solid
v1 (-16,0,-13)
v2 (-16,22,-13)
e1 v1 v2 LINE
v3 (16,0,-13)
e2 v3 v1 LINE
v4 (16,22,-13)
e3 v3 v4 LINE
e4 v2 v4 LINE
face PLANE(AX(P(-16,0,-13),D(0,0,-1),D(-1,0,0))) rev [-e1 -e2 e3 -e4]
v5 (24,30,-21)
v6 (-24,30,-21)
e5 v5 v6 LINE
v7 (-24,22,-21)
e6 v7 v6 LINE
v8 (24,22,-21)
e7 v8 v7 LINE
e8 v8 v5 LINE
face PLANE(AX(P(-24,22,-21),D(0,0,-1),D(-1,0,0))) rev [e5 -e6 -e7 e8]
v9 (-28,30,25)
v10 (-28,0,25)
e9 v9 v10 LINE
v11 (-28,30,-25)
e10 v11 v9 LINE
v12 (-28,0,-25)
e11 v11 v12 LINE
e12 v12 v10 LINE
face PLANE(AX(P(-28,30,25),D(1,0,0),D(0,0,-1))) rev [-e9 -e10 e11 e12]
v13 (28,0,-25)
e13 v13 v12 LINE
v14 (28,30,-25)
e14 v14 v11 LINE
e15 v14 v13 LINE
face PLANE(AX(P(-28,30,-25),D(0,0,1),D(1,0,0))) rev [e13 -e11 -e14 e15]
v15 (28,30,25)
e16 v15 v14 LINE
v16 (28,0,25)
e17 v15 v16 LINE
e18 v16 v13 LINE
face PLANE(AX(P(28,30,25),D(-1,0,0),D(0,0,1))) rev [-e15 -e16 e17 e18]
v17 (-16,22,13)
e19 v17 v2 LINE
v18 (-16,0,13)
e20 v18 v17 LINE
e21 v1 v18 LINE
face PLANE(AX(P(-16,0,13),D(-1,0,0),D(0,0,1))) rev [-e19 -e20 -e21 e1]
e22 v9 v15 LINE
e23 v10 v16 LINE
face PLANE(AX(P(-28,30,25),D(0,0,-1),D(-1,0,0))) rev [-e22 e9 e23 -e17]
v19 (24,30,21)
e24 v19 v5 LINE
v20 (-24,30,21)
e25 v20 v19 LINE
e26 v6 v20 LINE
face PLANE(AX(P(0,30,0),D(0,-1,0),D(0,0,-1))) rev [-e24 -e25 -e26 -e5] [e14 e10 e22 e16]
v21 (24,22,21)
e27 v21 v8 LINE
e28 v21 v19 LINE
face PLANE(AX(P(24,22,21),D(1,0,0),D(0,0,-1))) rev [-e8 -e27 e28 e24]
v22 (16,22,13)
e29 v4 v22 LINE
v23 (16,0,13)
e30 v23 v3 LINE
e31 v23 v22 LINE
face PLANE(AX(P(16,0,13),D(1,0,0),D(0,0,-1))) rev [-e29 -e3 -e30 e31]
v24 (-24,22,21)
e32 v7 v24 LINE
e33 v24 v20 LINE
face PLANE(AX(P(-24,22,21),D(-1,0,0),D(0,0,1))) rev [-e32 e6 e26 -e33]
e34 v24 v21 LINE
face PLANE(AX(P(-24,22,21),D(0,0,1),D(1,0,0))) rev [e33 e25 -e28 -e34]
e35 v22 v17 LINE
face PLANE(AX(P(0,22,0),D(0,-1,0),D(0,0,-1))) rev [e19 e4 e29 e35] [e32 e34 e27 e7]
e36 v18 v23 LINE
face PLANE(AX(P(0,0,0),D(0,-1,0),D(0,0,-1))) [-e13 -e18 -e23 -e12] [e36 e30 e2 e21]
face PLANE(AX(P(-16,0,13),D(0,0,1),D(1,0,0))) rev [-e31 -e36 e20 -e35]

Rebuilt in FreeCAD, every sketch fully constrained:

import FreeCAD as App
import Part
import Sketcher
Q = App.Units.Quantity


def add_polygon(sketch, points):
    """Adds a closed chain of lines whose ends are joined by coincident constraints."""
    first, n = sketch.GeometryCount, len(points)
    for a, b in zip(points, points[1:] + points[:1]):
        sketch.addGeometry(Part.LineSegment(App.Vector(*a, 0), App.Vector(*b, 0)), False)
    for i in range(n):
        sketch.addConstraint(Sketcher.Constraint("Coincident", first + i, 2, first + (i + 1) % n, 1))

doc = App.newDocument("Part")
body = doc.addObject("PartDesign::Body", "Body")

# Sketch on XZ plane
sketch1 = body.newObject("Sketcher::SketchObject", "Sketch")
sketch1.AttachmentSupport = (doc.getObject("XZ_Plane"), [""])
sketch1.MapMode = "FlatFace"
add_polygon(sketch1, [(-28, -25), (-28, 25), (28, 25), (28, -25)])  # lines 0-3
sketch1.addConstraint(Sketcher.Constraint("Vertical", 0))
sketch1.addConstraint(Sketcher.Constraint("Horizontal", 1))
sketch1.addConstraint(Sketcher.Constraint("Vertical", 2))
sketch1.addConstraint(Sketcher.Constraint("Horizontal", 3))
sketch1.addConstraint(Sketcher.Constraint("Symmetric", 0, 2, 2, 2, -1, 1))
sketch1.addConstraint(Sketcher.Constraint("DistanceX", 1, 1, 1, 2, Q("56 mm")))
sketch1.addConstraint(Sketcher.Constraint("DistanceY", 0, 1, 0, 2, Q("50 mm")))
pad1 = body.newObject("PartDesign::Pad", "Pad")
pad1.Profile = sketch1
pad1.Length = 30
pad1.Reversed = True

# Sketch on XZ plane
sketch2 = body.newObject("Sketcher::SketchObject", "Sketch001")
sketch2.AttachmentSupport = (doc.getObject("XZ_Plane"), [""])
sketch2.MapMode = "FlatFace"
sketch2.AttachmentOffset = App.Placement(App.Vector(0, 0, -30), App.Rotation())
add_polygon(sketch2, [(-24, -21), (-24, 21), (24, 21), (24, -21)])  # lines 0-3
sketch2.addConstraint(Sketcher.Constraint("Vertical", 0))
sketch2.addConstraint(Sketcher.Constraint("Horizontal", 1))
sketch2.addConstraint(Sketcher.Constraint("Vertical", 2))
sketch2.addConstraint(Sketcher.Constraint("Horizontal", 3))
sketch2.addConstraint(Sketcher.Constraint("Symmetric", 0, 2, 2, 2, -1, 1))
sketch2.addConstraint(Sketcher.Constraint("DistanceX", 1, 1, 1, 2, Q("48 mm")))
sketch2.addConstraint(Sketcher.Constraint("DistanceY", 0, 1, 0, 2, Q("42 mm")))
pocket1 = body.newObject("PartDesign::Pocket", "Pocket")
pocket1.Profile = sketch2
pocket1.Length = 8
pocket1.Reversed = True

# Sketch on XZ plane
sketch3 = body.newObject("Sketcher::SketchObject", "Sketch002")
sketch3.AttachmentSupport = (doc.getObject("XZ_Plane"), [""])
sketch3.MapMode = "FlatFace"
sketch3.AttachmentOffset = App.Placement(App.Vector(0, 0, -22), App.Rotation())
add_polygon(sketch3, [(-16, -13), (-16, 13), (16, 13), (16, -13)])  # lines 0-3
sketch3.addConstraint(Sketcher.Constraint("Vertical", 0))
sketch3.addConstraint(Sketcher.Constraint("Horizontal", 1))
sketch3.addConstraint(Sketcher.Constraint("Vertical", 2))
sketch3.addConstraint(Sketcher.Constraint("Horizontal", 3))
sketch3.addConstraint(Sketcher.Constraint("Symmetric", 0, 2, 2, 2, -1, 1))
sketch3.addConstraint(Sketcher.Constraint("DistanceX", 1, 1, 1, 2, Q("32 mm")))
sketch3.addConstraint(Sketcher.Constraint("DistanceY", 0, 1, 0, 2, Q("26 mm")))
pocket2 = body.newObject("PartDesign::Pocket", "Pocket001")
pocket2.Profile = sketch3
pocket2.Type = "ThroughAll"
pocket2.Midplane = True

doc.recompute()
